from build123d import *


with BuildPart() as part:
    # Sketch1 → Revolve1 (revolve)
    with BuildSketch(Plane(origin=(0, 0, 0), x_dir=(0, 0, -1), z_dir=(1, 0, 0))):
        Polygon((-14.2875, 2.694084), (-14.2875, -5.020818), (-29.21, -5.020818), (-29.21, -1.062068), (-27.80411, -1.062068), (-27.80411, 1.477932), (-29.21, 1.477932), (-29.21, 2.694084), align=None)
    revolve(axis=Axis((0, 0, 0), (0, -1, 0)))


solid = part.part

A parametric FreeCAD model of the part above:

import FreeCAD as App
import Part
import Sketcher
from FreeCAD import Vector
Q = App.Units.Quantity

doc = App.newDocument("Part")
body = doc.addObject("PartDesign::Body", "Body")

# Sketch on YZ plane
sketch1 = body.newObject("Sketcher::SketchObject", "Sketch")
sketch1.AttachmentSupport = (doc.getObject("YZ_Plane"), [""])
sketch1.MapMode = "FlatFace"
sketch1.addGeometry([
    Part.LineSegment(Vector(-5.020818, 14.2875, 0), Vector(2.694084, 14.2875, 0)),  # 0
    Part.LineSegment(Vector(2.694084, 14.2875, 0), Vector(2.694084, 29.21, 0)),  # 1
    Part.LineSegment(Vector(2.694084, 29.21, 0), Vector(1.477932, 29.21, 0)),  # 2
    Part.LineSegment(Vector(1.477932, 29.21, 0), Vector(1.477932, 27.80411, 0)),  # 3
    Part.LineSegment(Vector(1.477932, 27.80411, 0), Vector(-1.062068, 27.80411, 0)),  # 4
    Part.LineSegment(Vector(-1.062068, 27.80411, 0), Vector(-1.062068, 29.21, 0)),  # 5
    Part.LineSegment(Vector(-1.062068, 29.21, 0), Vector(-5.020818, 29.21, 0)),  # 6
    Part.LineSegment(Vector(-5.020818, 29.21, 0), Vector(-5.020818, 14.2875, 0)),  # 7
], False)
sketch1.addConstraint([
    Sketcher.Constraint("Coincident", 0, 2, 1, 1),
    Sketcher.Constraint("Coincident", 1, 2, 2, 1),
    Sketcher.Constraint("Coincident", 2, 2, 3, 1),
    Sketcher.Constraint("Coincident", 3, 2, 4, 1),
    Sketcher.Constraint("Coincident", 4, 2, 5, 1),
    Sketcher.Constraint("Coincident", 5, 2, 6, 1),
    Sketcher.Constraint("Coincident", 6, 2, 7, 1),
    Sketcher.Constraint("Coincident", 7, 2, 0, 1),
    Sketcher.Constraint("Horizontal", 0),
    Sketcher.Constraint("Vertical", 1),
    Sketcher.Constraint("Horizontal", 2),
    Sketcher.Constraint("Vertical", 3),
    Sketcher.Constraint("Horizontal", 4),
    Sketcher.Constraint("Vertical", 5),
    Sketcher.Constraint("Horizontal", 6),
    Sketcher.Constraint("Vertical", 7),
    Sketcher.Constraint("Horizontal", 2, 2, 5, 2),
    Sketcher.Constraint("DistanceX", 4, 2, 4, 1, Q("0.1 in")),
    Sketcher.Constraint("DistanceY", -1, 1, 1, 2, Q("1.15 in")),
    Sketcher.Constraint("DistanceY", 1, 1, 1, 2, Q("0.5875 in")),
    Sketcher.Constraint("DistanceX", 6, 2, 6, 1, Q("3.95875 mm")),
    Sketcher.Constraint("DistanceY", 3, 2, 3, 1, Q("1.40589 mm")),
    Sketcher.Constraint("DistanceX", 0, 1, 0, 2, Q("7.714902 mm")),
    Sketcher.Constraint("DistanceX", 6, 2, -1, 1, Q("5.020818 mm")),
])
revolution = body.newObject("PartDesign::Revolution", "Revolution")
revolution.Profile = sketch1
revolution.ReferenceAxis = (sketch1, ["H_Axis"])
revolution.Angle = 360

doc.recompute()
